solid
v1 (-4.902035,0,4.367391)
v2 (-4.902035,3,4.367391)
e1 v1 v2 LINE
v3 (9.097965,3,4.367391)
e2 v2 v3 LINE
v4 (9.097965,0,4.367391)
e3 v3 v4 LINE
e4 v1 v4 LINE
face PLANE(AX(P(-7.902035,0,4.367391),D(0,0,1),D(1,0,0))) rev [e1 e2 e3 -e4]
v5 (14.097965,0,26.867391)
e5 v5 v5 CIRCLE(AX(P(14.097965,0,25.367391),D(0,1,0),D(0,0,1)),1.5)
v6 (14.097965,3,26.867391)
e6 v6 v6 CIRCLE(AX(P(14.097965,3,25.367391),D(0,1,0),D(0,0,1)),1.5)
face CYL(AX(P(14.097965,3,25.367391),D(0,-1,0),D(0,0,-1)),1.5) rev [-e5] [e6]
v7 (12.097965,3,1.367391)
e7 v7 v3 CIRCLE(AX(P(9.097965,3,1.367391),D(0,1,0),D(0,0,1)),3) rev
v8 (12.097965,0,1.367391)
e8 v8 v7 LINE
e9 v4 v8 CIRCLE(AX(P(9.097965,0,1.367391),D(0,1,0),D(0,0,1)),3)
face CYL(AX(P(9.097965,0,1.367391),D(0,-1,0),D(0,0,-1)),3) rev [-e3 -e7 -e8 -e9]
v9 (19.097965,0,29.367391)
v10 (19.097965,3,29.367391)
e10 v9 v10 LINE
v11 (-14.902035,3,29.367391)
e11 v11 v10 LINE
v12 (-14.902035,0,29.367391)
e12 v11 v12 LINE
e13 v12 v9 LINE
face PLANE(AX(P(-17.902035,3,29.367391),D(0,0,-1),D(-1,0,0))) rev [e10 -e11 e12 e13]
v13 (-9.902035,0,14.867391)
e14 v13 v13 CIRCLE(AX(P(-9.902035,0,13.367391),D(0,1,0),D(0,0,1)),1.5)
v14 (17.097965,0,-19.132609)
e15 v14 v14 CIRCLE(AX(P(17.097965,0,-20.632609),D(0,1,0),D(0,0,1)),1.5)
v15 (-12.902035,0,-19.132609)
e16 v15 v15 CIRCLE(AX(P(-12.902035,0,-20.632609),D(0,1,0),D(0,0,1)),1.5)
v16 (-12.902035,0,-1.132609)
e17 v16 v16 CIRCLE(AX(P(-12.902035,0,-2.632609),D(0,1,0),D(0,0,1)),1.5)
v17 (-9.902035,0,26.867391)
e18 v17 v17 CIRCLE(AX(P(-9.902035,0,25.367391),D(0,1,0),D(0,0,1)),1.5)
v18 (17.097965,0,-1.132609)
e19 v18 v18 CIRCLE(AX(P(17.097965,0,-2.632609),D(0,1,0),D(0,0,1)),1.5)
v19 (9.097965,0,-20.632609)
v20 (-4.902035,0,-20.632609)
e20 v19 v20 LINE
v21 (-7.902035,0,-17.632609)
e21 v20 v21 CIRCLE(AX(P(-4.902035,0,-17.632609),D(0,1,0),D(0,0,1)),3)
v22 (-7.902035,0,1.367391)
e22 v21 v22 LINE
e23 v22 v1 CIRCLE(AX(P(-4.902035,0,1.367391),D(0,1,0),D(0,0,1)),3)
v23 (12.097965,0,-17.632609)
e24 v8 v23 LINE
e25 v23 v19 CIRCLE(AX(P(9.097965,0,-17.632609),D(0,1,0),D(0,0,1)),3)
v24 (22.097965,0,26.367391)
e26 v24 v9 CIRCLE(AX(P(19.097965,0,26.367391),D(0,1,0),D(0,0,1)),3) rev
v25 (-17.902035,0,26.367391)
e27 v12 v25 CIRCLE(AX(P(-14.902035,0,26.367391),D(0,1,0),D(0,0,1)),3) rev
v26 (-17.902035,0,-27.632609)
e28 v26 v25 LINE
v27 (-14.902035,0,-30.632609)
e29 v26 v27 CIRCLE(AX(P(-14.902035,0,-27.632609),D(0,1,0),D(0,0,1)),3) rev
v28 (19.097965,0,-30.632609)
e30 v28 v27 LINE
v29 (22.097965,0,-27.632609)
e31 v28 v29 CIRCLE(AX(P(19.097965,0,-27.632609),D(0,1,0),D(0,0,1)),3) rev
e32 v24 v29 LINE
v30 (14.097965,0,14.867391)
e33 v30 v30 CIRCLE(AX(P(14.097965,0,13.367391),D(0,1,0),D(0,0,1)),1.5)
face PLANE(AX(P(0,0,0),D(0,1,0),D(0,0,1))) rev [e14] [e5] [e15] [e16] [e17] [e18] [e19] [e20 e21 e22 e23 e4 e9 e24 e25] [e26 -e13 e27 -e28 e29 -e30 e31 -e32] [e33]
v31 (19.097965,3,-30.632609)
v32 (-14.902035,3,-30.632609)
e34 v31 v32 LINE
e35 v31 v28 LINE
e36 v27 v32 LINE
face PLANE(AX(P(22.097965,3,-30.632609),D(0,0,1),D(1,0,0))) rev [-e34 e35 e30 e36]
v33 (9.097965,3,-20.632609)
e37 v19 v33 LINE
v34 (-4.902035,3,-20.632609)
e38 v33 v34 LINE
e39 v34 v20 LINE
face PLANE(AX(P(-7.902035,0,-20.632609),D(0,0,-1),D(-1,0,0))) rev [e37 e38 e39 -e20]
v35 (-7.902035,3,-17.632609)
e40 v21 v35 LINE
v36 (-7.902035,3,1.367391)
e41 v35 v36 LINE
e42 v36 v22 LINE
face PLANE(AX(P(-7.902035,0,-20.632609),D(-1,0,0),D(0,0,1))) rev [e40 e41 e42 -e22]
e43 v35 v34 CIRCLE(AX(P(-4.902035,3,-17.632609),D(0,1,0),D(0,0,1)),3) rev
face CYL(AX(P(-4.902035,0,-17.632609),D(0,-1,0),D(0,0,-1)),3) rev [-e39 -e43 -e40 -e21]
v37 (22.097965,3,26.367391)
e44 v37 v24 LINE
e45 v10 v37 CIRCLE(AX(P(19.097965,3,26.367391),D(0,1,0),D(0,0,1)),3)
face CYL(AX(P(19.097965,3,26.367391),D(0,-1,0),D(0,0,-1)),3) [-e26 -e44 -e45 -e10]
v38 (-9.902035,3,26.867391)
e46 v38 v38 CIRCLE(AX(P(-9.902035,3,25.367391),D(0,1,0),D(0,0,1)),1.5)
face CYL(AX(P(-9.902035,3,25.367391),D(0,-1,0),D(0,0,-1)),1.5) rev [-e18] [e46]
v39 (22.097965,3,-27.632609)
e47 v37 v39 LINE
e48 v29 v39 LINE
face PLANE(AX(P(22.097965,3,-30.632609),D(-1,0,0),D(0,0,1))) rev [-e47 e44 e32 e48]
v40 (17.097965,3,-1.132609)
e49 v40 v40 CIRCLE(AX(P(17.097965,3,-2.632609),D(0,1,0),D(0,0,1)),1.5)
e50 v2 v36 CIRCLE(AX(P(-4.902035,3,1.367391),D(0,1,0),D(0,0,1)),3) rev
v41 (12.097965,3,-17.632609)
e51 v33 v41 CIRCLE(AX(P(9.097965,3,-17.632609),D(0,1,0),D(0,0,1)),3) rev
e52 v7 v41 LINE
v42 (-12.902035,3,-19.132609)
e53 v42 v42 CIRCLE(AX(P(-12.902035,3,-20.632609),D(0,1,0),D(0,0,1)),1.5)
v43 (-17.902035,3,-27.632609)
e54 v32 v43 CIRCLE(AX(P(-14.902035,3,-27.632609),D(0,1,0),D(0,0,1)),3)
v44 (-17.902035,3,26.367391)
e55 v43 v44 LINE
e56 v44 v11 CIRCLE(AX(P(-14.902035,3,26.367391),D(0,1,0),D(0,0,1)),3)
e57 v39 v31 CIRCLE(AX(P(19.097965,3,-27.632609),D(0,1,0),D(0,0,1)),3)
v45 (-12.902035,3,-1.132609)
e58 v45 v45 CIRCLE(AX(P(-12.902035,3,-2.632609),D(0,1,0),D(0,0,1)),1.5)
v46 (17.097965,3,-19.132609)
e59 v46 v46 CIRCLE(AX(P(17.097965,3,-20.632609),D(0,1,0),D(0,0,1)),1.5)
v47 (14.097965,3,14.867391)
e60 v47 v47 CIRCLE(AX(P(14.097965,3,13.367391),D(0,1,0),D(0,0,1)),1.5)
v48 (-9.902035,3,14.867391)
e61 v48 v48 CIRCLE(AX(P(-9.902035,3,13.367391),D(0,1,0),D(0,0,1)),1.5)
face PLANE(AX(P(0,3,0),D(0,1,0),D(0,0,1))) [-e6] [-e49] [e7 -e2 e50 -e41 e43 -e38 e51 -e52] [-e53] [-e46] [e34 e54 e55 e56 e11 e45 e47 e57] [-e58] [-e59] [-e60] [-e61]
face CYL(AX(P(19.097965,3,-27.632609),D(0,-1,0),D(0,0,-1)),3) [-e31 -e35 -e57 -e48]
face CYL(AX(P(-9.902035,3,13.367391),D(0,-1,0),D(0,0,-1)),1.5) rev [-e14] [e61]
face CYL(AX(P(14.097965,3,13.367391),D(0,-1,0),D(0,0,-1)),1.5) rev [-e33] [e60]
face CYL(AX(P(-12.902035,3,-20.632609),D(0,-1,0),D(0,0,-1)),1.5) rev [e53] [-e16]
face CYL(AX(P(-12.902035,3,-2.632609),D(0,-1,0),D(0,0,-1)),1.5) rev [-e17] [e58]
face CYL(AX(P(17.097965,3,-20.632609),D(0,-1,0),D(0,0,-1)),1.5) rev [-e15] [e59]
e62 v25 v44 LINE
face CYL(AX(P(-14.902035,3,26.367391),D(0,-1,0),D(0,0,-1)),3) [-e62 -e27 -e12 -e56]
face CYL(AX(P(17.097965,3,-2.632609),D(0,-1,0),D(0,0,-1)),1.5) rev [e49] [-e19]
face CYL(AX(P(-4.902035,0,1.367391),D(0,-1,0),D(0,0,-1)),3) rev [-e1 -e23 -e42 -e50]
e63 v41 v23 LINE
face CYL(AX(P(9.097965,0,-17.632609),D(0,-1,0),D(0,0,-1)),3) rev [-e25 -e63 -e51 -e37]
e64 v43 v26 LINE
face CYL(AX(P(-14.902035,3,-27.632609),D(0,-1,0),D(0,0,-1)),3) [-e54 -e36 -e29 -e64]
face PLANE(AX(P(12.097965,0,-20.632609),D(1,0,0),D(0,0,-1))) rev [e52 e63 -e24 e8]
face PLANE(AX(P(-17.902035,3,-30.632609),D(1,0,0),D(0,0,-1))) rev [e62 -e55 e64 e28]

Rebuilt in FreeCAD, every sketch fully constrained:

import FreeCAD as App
import Part
import Sketcher

V = App.Vector
Q = App.Units.Quantity


def edges_at(feature, points):
    """Names of the edges that pass closest to the given points."""
    edges = feature.Shape.Edges
    near = lambda p: min(range(len(edges)), key=lambda i: edges[i].distToShape(Part.Vertex(*p))[0])
    return sorted({f"Edge{near(p) + 1}" for p in points})

doc = App.newDocument("Part")
params = doc.addObject("Spreadsheet::Sheet", "Params")
for row, (alias, value) in enumerate([
    ("sketch1_diameter", "3 mm"),
    ("sketch1_width", "40 mm"),
    ("sketch1_height", "60 mm"),
    ("pad1_length", "3 mm"),
    ("fillet_radius", "3 mm"),
    ("sketch2_width", "20 mm"),
    ("sketch2_height", "25 mm"),
    ("fillet2_radius", "3 mm"),
], start=1):
    params.set(f"A{row}", alias)
    params.set(f"B{row}", "=" + value)
    params.setAlias(f"B{row}", alias)

body = doc.addObject("PartDesign::Body", "Body")

# Sketch on XZ plane
sketch1 = body.newObject("Sketcher::SketchObject", "Sketch")
sketch1.AttachmentSupport = (doc.getObject("XZ_Plane"), [""])
sketch1.MapMode = "FlatFace"
sketch1.addGeometry(Part.LineSegment(V(-17.9, -30.6, 0), V(-17.9, 29.4, 0)), False)
sketch1.addGeometry(Part.LineSegment(V(-17.9, 29.4, 0), V(22.1, 29.4, 0)), False)
sketch1.addGeometry(Part.LineSegment(V(22.1, 29.4, 0), V(22.1, -30.6, 0)), False)
sketch1.addGeometry(Part.LineSegment(V(22.1, -30.6, 0), V(-17.9, -30.6, 0)), False)
sketch1.addGeometry(Part.Circle(V(-9.9, 25.4, 0), V(0, 0, 1), 1.5), False)
sketch1.addGeometry(Part.Circle(V(-9.9, 13.4, 0), V(0, 0, 1), 1.5), False)
sketch1.addGeometry(Part.Circle(V(14.1, 25.4, 0), V(0, 0, 1), 1.5), False)
sketch1.addGeometry(Part.Circle(V(14.1, 13.4, 0), V(0, 0, 1), 1.5), False)
sketch1.addGeometry(Part.Circle(V(-12.9, -2.6, 0), V(0, 0, 1), 1.5), False)
sketch1.addGeometry(Part.Circle(V(-12.9, -20.6, 0), V(0, 0, 1), 1.5), False)
sketch1.addGeometry(Part.Circle(V(17.1, -2.6, 0), V(0, 0, 1), 1.5), False)
sketch1.addGeometry(Part.Circle(V(17.1, -20.6, 0), V(0, 0, 1), 1.5), False)
sketch1.addConstraint(Sketcher.Constraint("Coincident", 0, 2, 1, 1))
sketch1.addConstraint(Sketcher.Constraint("Coincident", 1, 2, 2, 1))
sketch1.addConstraint(Sketcher.Constraint("Coincident", 2, 2, 3, 1))
sketch1.addConstraint(Sketcher.Constraint("Coincident", 3, 2, 0, 1))
sketch1.addConstraint(Sketcher.Constraint("Vertical", 0))
sketch1.addConstraint(Sketcher.Constraint("Horizontal", 1))
sketch1.addConstraint(Sketcher.Constraint("Vertical", 2))
sketch1.addConstraint(Sketcher.Constraint("Horizontal", 3))
sketch1.addConstraint(Sketcher.Constraint("Equal", 4, 5))
sketch1.addConstraint(Sketcher.Constraint("Equal", 5, 6))
sketch1.addConstraint(Sketcher.Constraint("Equal", 6, 7))
sketch1.addConstraint(Sketcher.Constraint("Equal", 7, 8))
sketch1.addConstraint(Sketcher.Constraint("Equal", 8, 9))
sketch1.addConstraint(Sketcher.Constraint("Equal", 9, 10))
sketch1.addConstraint(Sketcher.Constraint("Equal", 10, 11))
sketch1.addConstraint(Sketcher.Constraint("Horizontal", 4, 3, 6, 3))
sketch1.addConstraint(Sketcher.Constraint("Horizontal", 5, 3, 7, 3))
sketch1.addConstraint(Sketcher.Constraint("Horizontal", 8, 3, 10, 3))
sketch1.addConstraint(Sketcher.Constraint("Horizontal", 9, 3, 11, 3))
sketch1.addConstraint(Sketcher.Constraint("Vertical", 4, 3, 5, 3))
sketch1.addConstraint(Sketcher.Constraint("Vertical", 6, 3, 7, 3))
sketch1.addConstraint(Sketcher.Constraint("Vertical", 8, 3, 9, 3))
sketch1.addConstraint(Sketcher.Constraint("Vertical", 10, 3, 11, 3))
sketch1.addConstraint(Sketcher.Constraint("Diameter", 4, Q("3 mm")))
sketch1.addConstraint(Sketcher.Constraint("DistanceX", 1, 1, 1, 2, Q("40 mm")))
sketch1.addConstraint(Sketcher.Constraint("DistanceY", 0, 1, 0, 2, Q("60 mm")))
sketch1.addConstraint(Sketcher.Constraint("DistanceY", 5, 3, 4, 3, Q("12 mm")))
sketch1.addConstraint(Sketcher.Constraint("DistanceX", 4, 3, 6, 3, Q("24 mm")))
sketch1.addConstraint(Sketcher.Constraint("DistanceX", 8, 3, 5, 3, Q("3 mm")))
sketch1.addConstraint(Sketcher.Constraint("DistanceY", 8, 3, 5, 3, Q("16 mm")))
sketch1.addConstraint(Sketcher.Constraint("DistanceY", 9, 3, 8, 3, Q("18 mm")))
sketch1.addConstraint(Sketcher.Constraint("DistanceX", 7, 3, 10, 3, Q("3 mm")))
sketch1.addConstraint(Sketcher.Constraint("DistanceX", 0, 2, 4, 3, Q("8 mm")))
sketch1.addConstraint(Sketcher.Constraint("DistanceY", 4, 3, 0, 2, Q("4 mm")))
sketch1.addConstraint(Sketcher.Constraint("DistanceY", -1, 1, 4, 3, Q("25.367391 mm")))
sketch1.addConstraint(Sketcher.Constraint("DistanceX", 4, 3, -1, 1, Q("9.902035 mm")))
sketch1.setExpression("Constraints[23]", "Params.sketch1_diameter")
sketch1.setExpression("Constraints[24]", "Params.sketch1_width")
sketch1.setExpression("Constraints[25]", "Params.sketch1_height")
pad1 = body.newObject("PartDesign::Pad", "Pad")
pad1.Profile = sketch1
pad1.setExpression("Length", "Params.pad1_length")
pad1.Reversed = True
doc.recompute()

fillet = body.newObject("PartDesign::Fillet", "Fillet")
fillet.Base = (pad1, edges_at(pad1, [
    (-17.902, 1.5, -30.633),
    (22.098, 1.5, -30.633),
    (22.098, 1.5, 29.367),
    (-17.902, 1.5, 29.367),
]))
fillet.setExpression("Radius", "Params.fillet_radius")

# Sketch on XZ plane
sketch2 = body.newObject("Sketcher::SketchObject", "Sketch001")
sketch2.AttachmentSupport = (doc.getObject("XZ_Plane"), [""])
sketch2.MapMode = "FlatFace"
sketch2.AttachmentOffset = App.Placement(V(0, 0, -3), App.Rotation())
sketch2.addGeometry(Part.LineSegment(V(-8, -21, 0), V(-8, 4, 0)), False)
sketch2.addGeometry(Part.LineSegment(V(-8, 4, 0), V(12, 4, 0)), False)
sketch2.addGeometry(Part.LineSegment(V(12, 4, 0), V(12, -21, 0)), False)
sketch2.addGeometry(Part.LineSegment(V(12, -21, 0), V(-8, -21, 0)), False)
sketch2.addConstraint(Sketcher.Constraint("Coincident", 0, 2, 1, 1))
sketch2.addConstraint(Sketcher.Constraint("Coincident", 1, 2, 2, 1))
sketch2.addConstraint(Sketcher.Constraint("Coincident", 2, 2, 3, 1))
sketch2.addConstraint(Sketcher.Constraint("Coincident", 3, 2, 0, 1))
sketch2.addConstraint(Sketcher.Constraint("Vertical", 0))
sketch2.addConstraint(Sketcher.Constraint("Horizontal", 1))
sketch2.addConstraint(Sketcher.Constraint("Vertical", 2))
sketch2.addConstraint(Sketcher.Constraint("Horizontal", 3))
sketch2.addConstraint(Sketcher.Constraint("DistanceX", 1, 1, 1, 2, Q("20 mm")))
sketch2.addConstraint(Sketcher.Constraint("DistanceY", 0, 1, 0, 2, Q("25 mm")))
sketch2.addConstraint(Sketcher.Constraint("DistanceY", -1, 1, 0, 2, Q("4.367391 mm")))
sketch2.addConstraint(Sketcher.Constraint("DistanceX", 0, 2, -1, 1, Q("7.902035 mm")))
sketch2.setExpression("Constraints[8]", "Params.sketch2_width")
sketch2.setExpression("Constraints[9]", "Params.sketch2_height")
pocket1 = body.newObject("PartDesign::Pocket", "Pocket")
pocket1.Profile = sketch2
pocket1.Type = "ThroughAll"
pocket1.Reversed = True
doc.recompute()

fillet2 = body.newObject("PartDesign::Fillet", "Fillet001")
fillet2.Base = (pocket1, edges_at(pocket1, [
    (-7.902, 1.5, 4.367),
    (-7.902, 1.5, -20.633),
    (12.098, 1.5, -20.633),
    (12.098, 1.5, 4.367),
]))
fillet2.setExpression("Radius", "Params.fillet2_radius")

doc.recompute()
